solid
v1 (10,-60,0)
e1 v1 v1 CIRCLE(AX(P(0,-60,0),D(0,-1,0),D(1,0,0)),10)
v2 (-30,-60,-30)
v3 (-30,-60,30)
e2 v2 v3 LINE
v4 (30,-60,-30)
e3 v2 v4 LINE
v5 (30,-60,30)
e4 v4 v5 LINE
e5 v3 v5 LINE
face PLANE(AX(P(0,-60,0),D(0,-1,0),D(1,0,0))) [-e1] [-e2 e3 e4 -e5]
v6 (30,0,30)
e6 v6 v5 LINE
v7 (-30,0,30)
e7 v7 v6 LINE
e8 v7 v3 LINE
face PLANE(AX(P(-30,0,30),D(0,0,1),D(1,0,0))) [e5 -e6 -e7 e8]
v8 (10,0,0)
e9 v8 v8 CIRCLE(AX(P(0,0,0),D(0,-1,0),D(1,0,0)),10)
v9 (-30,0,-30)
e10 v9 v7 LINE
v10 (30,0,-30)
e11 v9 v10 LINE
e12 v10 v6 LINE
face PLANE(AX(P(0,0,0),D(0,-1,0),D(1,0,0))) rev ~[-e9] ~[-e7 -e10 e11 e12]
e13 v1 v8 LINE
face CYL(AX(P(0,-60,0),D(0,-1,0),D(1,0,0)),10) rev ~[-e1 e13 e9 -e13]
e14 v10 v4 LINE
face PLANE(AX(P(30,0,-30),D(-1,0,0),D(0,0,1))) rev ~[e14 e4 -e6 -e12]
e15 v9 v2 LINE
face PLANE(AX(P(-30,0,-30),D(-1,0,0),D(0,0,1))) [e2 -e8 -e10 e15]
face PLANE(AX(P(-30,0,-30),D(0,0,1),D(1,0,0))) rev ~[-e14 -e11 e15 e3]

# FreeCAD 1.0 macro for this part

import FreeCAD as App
import Part
import Sketcher
from FreeCAD import Vector
Q = App.Units.Quantity


def add_polygon(sketch, points):
    """Adds a closed chain of lines whose ends are joined by coincident constraints."""
    first, n = sketch.GeometryCount, len(points)
    for a, b in zip(points, points[1:] + points[:1]):
        sketch.addGeometry(Part.LineSegment(App.Vector(*a, 0), App.Vector(*b, 0)), False)
    for i in range(n):
        sketch.addConstraint(Sketcher.Constraint("Coincident", first + i, 2, first + (i + 1) % n, 1))

doc = App.newDocument("Part")
params = doc.addObject("Spreadsheet::Sheet", "Params")
for row, (alias, value) in enumerate([
    ("sketch1_width", "60 mm"),
    ("pad1_length", "60 mm"),
    ("sketch2_diameter", "20 mm"),
], start=1):
    params.set(f"A{row}", alias)
    params.set(f"B{row}", "=" + value)
    params.setAlias(f"B{row}", alias)

body = doc.addObject("PartDesign::Body", "Body")

# Sketch on XZ plane
sketch1 = doc.addObject("Sketcher::SketchObject", "Sketch")
body.addObject(sketch1)
sketch1.AttachmentSupport = (doc.XZ_Plane, [""])
sketch1.MapMode = "FlatFace"
add_polygon(sketch1, [(-30, 30), (-30, -30), (30, -30), (30, 30)])  # lines 0-3
sketch1.addConstraint([
    Sketcher.Constraint("Vertical", 0),
    Sketcher.Constraint("Horizontal", 1),
    Sketcher.Constraint("Vertical", 2),
    Sketcher.Constraint("Horizontal", 3),
    Sketcher.Constraint("Symmetric", 0, 2, 2, 2, -1, 1),
    Sketcher.Constraint("Equal", 3, 0),
    Sketcher.Constraint("DistanceX", 1, 1, 1, 2, Q("60 mm")),
])
sketch1.setExpression("Constraints[10]", "Params.sketch1_width")
pad1 = doc.addObject("PartDesign::Pad", "Pad")
body.addObject(pad1)
pad1.Profile = sketch1
pad1.setExpression("Length", "Params.pad1_length")

# Sketch on XZ plane
sketch2 = doc.addObject("Sketcher::SketchObject", "Sketch001")
body.addObject(sketch2)
sketch2.AttachmentSupport = (doc.XZ_Plane, [""])
sketch2.MapMode = "FlatFace"
sketch2.AttachmentOffset = App.Placement(Vector(0, 0, 60), App.Rotation())
sketch2.addGeometry(Part.Circle(Vector(0, 0, 0), Vector(0, 0, 1), 10), False)
sketch2.addConstraint([
    Sketcher.Constraint("Coincident", 0, 3, -1, 1),
    Sketcher.Constraint("Diameter", 0, Q("20 mm")),
])
sketch2.setExpression("Constraints[1]", "Params.sketch2_diameter")
pocket1 = doc.addObject("PartDesign::Pocket", "Pocket")
body.addObject(pocket1)
pocket1.Profile = sketch2
pocket1.Type = "ThroughAll"

doc.recompute()
